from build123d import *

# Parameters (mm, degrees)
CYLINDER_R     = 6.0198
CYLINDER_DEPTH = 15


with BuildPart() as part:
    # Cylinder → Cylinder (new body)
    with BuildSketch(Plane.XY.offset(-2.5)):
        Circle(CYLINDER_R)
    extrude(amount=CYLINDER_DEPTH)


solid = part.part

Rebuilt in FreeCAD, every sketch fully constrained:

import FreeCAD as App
import Part
import Sketcher

V = App.Vector
Q = App.Units.Quantity

doc = App.newDocument("Part")
body = doc.addObject("PartDesign::Body", "Body")

# Sketch on XY plane
sketch1 = body.newObject("Sketcher::SketchObject", "Sketch")
sketch1.AttachmentSupport = (doc.getObject("XY_Plane"), [""])
sketch1.MapMode = "FlatFace"
sketch1.AttachmentOffset = App.Placement(V(0, 0, -2.5), App.Rotation())
sketch1.addGeometry(Part.Circle(V(0, 0, 0), V(0, 0, 1), 6.0198), False)
sketch1.addConstraint([
    Sketcher.Constraint("Coincident", 0, 3, -1, 1),
    Sketcher.Constraint("Diameter", 0, Q("12.0396 mm")),
])
pad1 = body.newObject("PartDesign::Pad", "Pad")
pad1.Profile = sketch1
pad1.Length = 15

doc.recompute()
